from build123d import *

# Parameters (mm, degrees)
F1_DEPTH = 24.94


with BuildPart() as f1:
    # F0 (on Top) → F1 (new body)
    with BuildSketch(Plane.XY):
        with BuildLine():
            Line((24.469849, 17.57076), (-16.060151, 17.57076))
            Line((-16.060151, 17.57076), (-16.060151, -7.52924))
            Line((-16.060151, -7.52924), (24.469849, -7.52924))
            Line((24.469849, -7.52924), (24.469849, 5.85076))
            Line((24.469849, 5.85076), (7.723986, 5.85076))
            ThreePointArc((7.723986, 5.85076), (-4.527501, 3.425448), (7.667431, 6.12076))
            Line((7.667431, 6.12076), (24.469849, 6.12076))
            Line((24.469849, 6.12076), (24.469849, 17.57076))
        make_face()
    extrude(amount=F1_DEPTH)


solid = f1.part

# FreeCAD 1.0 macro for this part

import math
import FreeCAD as App
import Part
import Sketcher

V = App.Vector

doc = App.newDocument("Part")
body = doc.addObject("PartDesign::Body", "Body")

# Sketch on XY plane
sketch1 = body.newObject("Sketcher::SketchObject", "Sketch")
sketch1.AttachmentSupport = (doc.getObject("XY_Plane"), [""])
sketch1.MapMode = "FlatFace"
sketch1.addGeometry(Part.LineSegment(V(24.47, 17.57, 0), V(-16.06, 17.57, 0)), False)
sketch1.addGeometry(Part.LineSegment(V(-16.06, 17.57, 0), V(-16.06, -7.53, 0)), False)
sketch1.addGeometry(Part.LineSegment(V(-16.06, -7.53, 0), V(24.47, -7.53, 0)), False)
sketch1.addGeometry(Part.LineSegment(V(24.47, -7.53, 0), V(24.47, 5.85, 0)), False)
sketch1.addGeometry(Part.LineSegment(V(24.47, 5.85, 0), V(7.72, 5.85, 0)), False)
sketch1.addGeometry(Part.ArcOfCircle(Part.Circle(V(1.58, 4.71, 0), V(0, 0, 1), 6.24), math.radians(13), math.radians(371)), False)
sketch1.addGeometry(Part.LineSegment(V(7.67, 6.12, 0), V(24.47, 6.12, 0)), False)
sketch1.addGeometry(Part.LineSegment(V(24.47, 6.12, 0), V(24.47, 17.57, 0)), False)
sketch1.addConstraint(Sketcher.Constraint("Coincident", 0, 2, 1, 1))
sketch1.addConstraint(Sketcher.Constraint("Coincident", 1, 2, 2, 1))
sketch1.addConstraint(Sketcher.Constraint("Coincident", 2, 2, 3, 1))
sketch1.addConstraint(Sketcher.Constraint("Coincident", 3, 2, 4, 1))
sketch1.addConstraint(Sketcher.Constraint("Coincident", 4, 2, 5, 2))
sketch1.addConstraint(Sketcher.Constraint("Coincident", 5, 1, 6, 1))
sketch1.addConstraint(Sketcher.Constraint("Coincident", 6, 2, 7, 1))
sketch1.addConstraint(Sketcher.Constraint("Coincident", 7, 2, 0, 1))
sketch1.addConstraint(Sketcher.Constraint("Horizontal", 0))
sketch1.addConstraint(Sketcher.Constraint("Vertical", 1))
sketch1.addConstraint(Sketcher.Constraint("Horizontal", 2))
sketch1.addConstraint(Sketcher.Constraint("Vertical", 3))
sketch1.addConstraint(Sketcher.Constraint("Horizontal", 4))
sketch1.addConstraint(Sketcher.Constraint("Horizontal", 6))
sketch1.addConstraint(Sketcher.Constraint("Vertical", 7))
sketch1.addConstraint(Sketcher.Constraint("Vertical", 3, 2, 6, 2))
sketch1.addConstraint(Sketcher.Constraint("DistanceY", 1, 2, 1, 1, 25.1))
sketch1.addConstraint(Sketcher.Constraint("Radius", 5, 6.245))
sketch1.addConstraint(Sketcher.Constraint("DistanceX", 0, 2, 0, 1, 40.53))
sketch1.addConstraint(Sketcher.Constraint("DistanceY", 3, 1, 3, 2, 13.38))
sketch1.addConstraint(Sketcher.Constraint("DistanceY", 7, 1, 7, 2, 11.45))
sketch1.addConstraint(Sketcher.Constraint("DistanceX", 0, 2, 5, 3, 17.645))
sketch1.addConstraint(Sketcher.Constraint("DistanceY", 5, 3, 0, 2, 12.864999))
sketch1.addConstraint(Sketcher.Constraint("DistanceX", -1, 1, 5, 3, 1.584849))
sketch1.addConstraint(Sketcher.Constraint("DistanceY", -1, 1, 5, 3, 4.705761))
pad1 = body.newObject("PartDesign::Pad", "Pad")
pad1.Profile = sketch1
pad1.Length = 24.94

doc.recompute()
